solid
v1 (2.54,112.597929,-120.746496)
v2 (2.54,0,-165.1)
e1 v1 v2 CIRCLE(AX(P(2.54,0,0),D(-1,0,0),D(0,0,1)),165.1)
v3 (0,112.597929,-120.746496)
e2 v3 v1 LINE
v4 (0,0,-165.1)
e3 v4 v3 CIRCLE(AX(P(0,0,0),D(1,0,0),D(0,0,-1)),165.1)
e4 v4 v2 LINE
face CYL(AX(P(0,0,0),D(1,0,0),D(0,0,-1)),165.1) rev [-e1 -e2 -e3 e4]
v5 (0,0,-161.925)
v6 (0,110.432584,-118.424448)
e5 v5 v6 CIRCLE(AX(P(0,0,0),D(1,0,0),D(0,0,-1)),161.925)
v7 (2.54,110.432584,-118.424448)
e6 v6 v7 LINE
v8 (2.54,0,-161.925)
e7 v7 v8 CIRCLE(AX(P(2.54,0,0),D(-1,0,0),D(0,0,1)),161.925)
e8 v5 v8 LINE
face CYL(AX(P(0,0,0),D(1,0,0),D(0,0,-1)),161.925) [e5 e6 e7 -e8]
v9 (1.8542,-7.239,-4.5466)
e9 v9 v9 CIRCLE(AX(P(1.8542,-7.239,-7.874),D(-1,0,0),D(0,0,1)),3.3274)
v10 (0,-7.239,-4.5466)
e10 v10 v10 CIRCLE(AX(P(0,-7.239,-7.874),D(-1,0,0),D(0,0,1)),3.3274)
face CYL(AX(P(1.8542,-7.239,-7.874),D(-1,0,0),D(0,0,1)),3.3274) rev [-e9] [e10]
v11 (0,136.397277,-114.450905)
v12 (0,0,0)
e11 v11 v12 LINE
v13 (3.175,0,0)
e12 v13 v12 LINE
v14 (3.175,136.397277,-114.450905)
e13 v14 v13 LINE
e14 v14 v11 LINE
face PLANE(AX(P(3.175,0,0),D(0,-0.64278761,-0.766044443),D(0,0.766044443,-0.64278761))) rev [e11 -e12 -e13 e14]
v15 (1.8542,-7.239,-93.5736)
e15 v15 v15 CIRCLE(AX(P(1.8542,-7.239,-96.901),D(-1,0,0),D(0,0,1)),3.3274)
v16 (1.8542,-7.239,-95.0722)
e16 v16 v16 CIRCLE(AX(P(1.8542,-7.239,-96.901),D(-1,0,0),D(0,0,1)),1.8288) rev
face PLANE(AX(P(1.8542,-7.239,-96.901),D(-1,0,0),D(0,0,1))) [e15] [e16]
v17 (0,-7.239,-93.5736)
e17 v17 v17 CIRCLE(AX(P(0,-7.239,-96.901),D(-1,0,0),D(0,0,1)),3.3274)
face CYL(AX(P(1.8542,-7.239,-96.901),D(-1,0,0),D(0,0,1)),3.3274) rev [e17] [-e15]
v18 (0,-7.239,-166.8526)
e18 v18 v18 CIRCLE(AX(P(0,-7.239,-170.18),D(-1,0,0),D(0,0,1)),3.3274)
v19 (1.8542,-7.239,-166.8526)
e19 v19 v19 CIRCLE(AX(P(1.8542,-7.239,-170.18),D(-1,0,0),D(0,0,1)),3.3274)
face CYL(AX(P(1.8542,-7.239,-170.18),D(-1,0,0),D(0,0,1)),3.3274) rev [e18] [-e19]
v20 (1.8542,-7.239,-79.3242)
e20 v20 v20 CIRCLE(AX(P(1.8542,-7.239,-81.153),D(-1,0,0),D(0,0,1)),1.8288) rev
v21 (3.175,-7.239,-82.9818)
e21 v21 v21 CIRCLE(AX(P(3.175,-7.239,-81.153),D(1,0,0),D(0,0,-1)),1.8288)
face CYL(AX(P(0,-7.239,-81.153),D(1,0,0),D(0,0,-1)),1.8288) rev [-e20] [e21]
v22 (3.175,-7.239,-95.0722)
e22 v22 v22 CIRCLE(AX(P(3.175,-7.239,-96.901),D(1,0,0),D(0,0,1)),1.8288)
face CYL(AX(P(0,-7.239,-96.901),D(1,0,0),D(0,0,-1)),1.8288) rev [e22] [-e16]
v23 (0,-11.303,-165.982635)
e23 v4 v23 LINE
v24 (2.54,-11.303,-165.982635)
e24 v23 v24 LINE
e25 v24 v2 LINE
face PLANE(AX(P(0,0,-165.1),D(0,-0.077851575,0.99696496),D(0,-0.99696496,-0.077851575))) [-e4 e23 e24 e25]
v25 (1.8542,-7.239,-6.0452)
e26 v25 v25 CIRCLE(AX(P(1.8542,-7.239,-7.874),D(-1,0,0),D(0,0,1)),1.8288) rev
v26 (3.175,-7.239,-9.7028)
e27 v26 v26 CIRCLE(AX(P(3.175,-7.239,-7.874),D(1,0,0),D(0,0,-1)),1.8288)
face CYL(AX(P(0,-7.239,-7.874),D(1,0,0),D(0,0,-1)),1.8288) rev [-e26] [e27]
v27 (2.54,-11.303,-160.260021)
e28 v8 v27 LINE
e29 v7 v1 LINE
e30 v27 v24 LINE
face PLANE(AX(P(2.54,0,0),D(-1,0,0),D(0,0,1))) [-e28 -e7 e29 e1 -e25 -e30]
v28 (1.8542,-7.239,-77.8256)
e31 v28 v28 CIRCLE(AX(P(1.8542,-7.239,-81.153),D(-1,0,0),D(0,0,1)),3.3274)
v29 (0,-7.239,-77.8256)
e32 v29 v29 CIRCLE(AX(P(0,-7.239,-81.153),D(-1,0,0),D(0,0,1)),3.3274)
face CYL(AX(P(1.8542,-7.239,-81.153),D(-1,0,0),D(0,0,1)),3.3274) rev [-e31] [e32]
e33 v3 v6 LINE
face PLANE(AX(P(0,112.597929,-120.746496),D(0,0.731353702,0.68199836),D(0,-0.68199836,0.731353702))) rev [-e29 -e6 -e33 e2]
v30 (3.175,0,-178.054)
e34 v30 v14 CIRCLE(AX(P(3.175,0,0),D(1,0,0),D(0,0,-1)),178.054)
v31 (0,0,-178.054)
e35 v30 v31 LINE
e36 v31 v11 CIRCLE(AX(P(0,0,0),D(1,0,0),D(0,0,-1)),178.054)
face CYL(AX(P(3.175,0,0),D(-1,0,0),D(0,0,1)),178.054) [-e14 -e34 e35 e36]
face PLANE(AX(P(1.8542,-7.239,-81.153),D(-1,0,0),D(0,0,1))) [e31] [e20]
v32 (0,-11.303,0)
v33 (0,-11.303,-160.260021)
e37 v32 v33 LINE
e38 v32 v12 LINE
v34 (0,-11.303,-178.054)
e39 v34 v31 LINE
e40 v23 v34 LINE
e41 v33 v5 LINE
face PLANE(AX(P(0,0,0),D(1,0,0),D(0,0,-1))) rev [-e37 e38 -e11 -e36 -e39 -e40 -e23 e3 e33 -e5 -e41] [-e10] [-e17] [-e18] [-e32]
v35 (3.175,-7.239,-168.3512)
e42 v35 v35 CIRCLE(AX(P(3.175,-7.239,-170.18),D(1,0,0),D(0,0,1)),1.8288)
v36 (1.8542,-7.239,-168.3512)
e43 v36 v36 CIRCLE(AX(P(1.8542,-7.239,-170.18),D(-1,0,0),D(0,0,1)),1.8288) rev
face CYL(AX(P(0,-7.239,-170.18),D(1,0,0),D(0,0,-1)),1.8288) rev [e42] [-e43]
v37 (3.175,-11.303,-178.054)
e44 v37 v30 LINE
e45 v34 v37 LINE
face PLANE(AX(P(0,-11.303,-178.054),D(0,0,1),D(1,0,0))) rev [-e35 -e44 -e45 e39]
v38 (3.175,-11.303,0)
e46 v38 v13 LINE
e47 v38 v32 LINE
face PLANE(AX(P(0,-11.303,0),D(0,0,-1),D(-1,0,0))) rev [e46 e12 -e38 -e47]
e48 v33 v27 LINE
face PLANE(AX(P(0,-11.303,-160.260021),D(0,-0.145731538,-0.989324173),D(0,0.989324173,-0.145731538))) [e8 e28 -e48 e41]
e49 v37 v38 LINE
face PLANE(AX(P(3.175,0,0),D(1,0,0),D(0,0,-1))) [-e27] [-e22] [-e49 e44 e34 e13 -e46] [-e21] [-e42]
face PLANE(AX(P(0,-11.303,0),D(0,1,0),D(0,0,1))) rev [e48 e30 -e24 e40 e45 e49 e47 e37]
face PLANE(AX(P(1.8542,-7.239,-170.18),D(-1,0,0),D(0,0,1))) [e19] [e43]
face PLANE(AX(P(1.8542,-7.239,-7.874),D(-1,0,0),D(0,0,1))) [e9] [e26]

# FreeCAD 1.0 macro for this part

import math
import FreeCAD as App
import Part
import Sketcher
Q = App.Units.Quantity

doc = App.newDocument("Part")
params = doc.addObject("Spreadsheet::Sheet", "Params")
for row, (alias, value) in enumerate([
    ("sketch1_radius", "7.01 in"),
    ("pad1_length", "0.125 in"),
    ("sketch2_height", "7.01 in"),
    ("sketch2_width", "0.125 in"),
    ("pad2_length", "0.445 in"),
    ("sketch3_diameter", "0.144 in"),
    ("sketch4_radius", "6.5 in"),
    ("sketch4_radius2", "6.375 in"),
    ("pocket2_length", "0.125 in"),
    ("sketch5_radius", "6.5 in"),
    ("sketch5_radius2", "6.375 in"),
    ("pad3_length", "0.025 in"),
    ("sketch6_diameter", "0.262 in"),
    ("pocket3_length", "0.073 in"),
], start=1):
    params.set(f"A{row}", alias)
    params.set(f"B{row}", "=" + value)
    params.setAlias(f"B{row}", alias)

body = doc.addObject("PartDesign::Body", "Body")

sketch1 = body.newObject("Sketcher::SketchObject", "Sketch")
sketch1.AttachmentSupport = (doc.getObject("YZ_Plane"), [""])
sketch1.MapMode = "FlatFace"
sketch1.addGeometry([
    Part.LineSegment(App.Vector(0, 0, 0), App.Vector(0, -178, 0)),
    Part.ArcOfCircle(Part.Circle(App.Vector(0, 0, 0), App.Vector(0, 0, 1), 178), math.radians(-90), math.radians(-40)),
    Part.LineSegment(App.Vector(136, -114, 0), App.Vector(0, 0, 0)),
], False)
sketch1.addConstraint([
    Sketcher.Constraint("Coincident", 0, 2, 1, 1),
    Sketcher.Constraint("Coincident", 1, 2, 2, 1),
    Sketcher.Constraint("Coincident", 2, 2, 0, 1),
    Sketcher.Constraint("Vertical", 0),
    Sketcher.Constraint("Coincident", 1, 3, -1, 1),
    Sketcher.Constraint("Coincident", 2, 2, -1, 1),
    Sketcher.Constraint("Radius", 1, Q("7.01 in")),
    Sketcher.Constraint("Angle", 2, Q("140 deg")),
])
sketch1.setExpression("Constraints[6]", "Params.sketch1_radius")
pad1 = body.newObject("PartDesign::Pad", "Pad")
pad1.Profile = sketch1
pad1.setExpression("Length", "Params.pad1_length")

sketch2 = body.newObject("Sketcher::SketchObject", "Sketch001")
sketch2.AttachmentSupport = (doc.getObject("XZ_Plane"), [""])
sketch2.MapMode = "FlatFace"
sketch2.addGeometry([
    Part.LineSegment(App.Vector(0, 0, 0), App.Vector(0, -178.1, 0)),
    Part.LineSegment(App.Vector(0, -178.1, 0), App.Vector(3.2, -178.1, 0)),
    Part.LineSegment(App.Vector(3.2, -178.1, 0), App.Vector(3.2, 0, 0)),
    Part.LineSegment(App.Vector(3.2, 0, 0), App.Vector(0, 0, 0)),
], False)
sketch2.addConstraint([
    Sketcher.Constraint("Coincident", 0, 2, 1, 1),
    Sketcher.Constraint("Coincident", 1, 2, 2, 1),
    Sketcher.Constraint("Coincident", 2, 2, 3, 1),
    Sketcher.Constraint("Coincident", 3, 2, 0, 1),
    Sketcher.Constraint("Vertical", 0),
    Sketcher.Constraint("Horizontal", 1),
    Sketcher.Constraint("Vertical", 2),
    Sketcher.Constraint("Horizontal", 3),
    Sketcher.Constraint("Coincident", 3, 2, -1, 1),
    Sketcher.Constraint("DistanceY", 0, 2, 0, 1, Q("7.01 in")),
    Sketcher.Constraint("DistanceX", 1, 1, 1, 2, Q("0.125 in")),
])
sketch2.setExpression("Constraints[9]", "Params.sketch2_height")
sketch2.setExpression("Constraints[10]", "Params.sketch2_width")
pad2 = body.newObject("PartDesign::Pad", "Pad001")
pad2.Profile = sketch2
pad2.setExpression("Length", "Params.pad2_length")

sketch3 = body.newObject("Sketcher::SketchObject", "Sketch002")
sketch3.AttachmentSupport = (doc.getObject("YZ_Plane"), [""])
sketch3.MapMode = "FlatFace"
sketch3.AttachmentOffset = App.Placement(App.Vector(0, 0, 0.125 * 25.4), App.Rotation())
sketch3.addGeometry([
    Part.Circle(App.Vector(-7.2, -7.9, 0), App.Vector(0, 0, 1), 1.8),
    Part.Circle(App.Vector(-7.2, -81.2, 0), App.Vector(0, 0, 1), 1.8),
    Part.Circle(App.Vector(-7.2, -96.9, 0), App.Vector(0, 0, 1), 1.8),
    Part.Circle(App.Vector(-7.2, -170.2, 0), App.Vector(0, 0, 1), 1.8),
], False)
sketch3.addConstraint([
    Sketcher.Constraint("Equal", 0, 1),
    Sketcher.Constraint("Equal", 1, 2),
    Sketcher.Constraint("Equal", 2, 3),
    Sketcher.Constraint("Vertical", 0, 3, 1, 3),
    Sketcher.Constraint("Vertical", 1, 3, 2, 3),
    Sketcher.Constraint("Vertical", 2, 3, 3, 3),
    Sketcher.Constraint("Diameter", 0, Q("0.144 in")),
    Sketcher.Constraint("DistanceY", 3, 3, -1, 1, Q("6.7 in")),
    Sketcher.Constraint("DistanceY", 0, 3, -1, 1, Q("0.31 in")),
    Sketcher.Constraint("DistanceY", 2, 3, 1, 3, Q("0.62 in")),
    Sketcher.Constraint("DistanceX", 0, 3, -1, 1, Q("0.285 in")),
    Sketcher.Constraint("DistanceY", 1, 3, -1, 1, Q("3.195 in")),
])
sketch3.setExpression("Constraints[6]", "Params.sketch3_diameter")
pocket1 = body.newObject("PartDesign::Pocket", "Pocket")
pocket1.Profile = sketch3
pocket1.Type = "ThroughAll"

sketch4 = body.newObject("Sketcher::SketchObject", "Sketch003")
sketch4.AttachmentSupport = (doc.getObject("YZ_Plane"), [""])
sketch4.MapMode = "FlatFace"
sketch4.AttachmentOffset = App.Placement(App.Vector(0, 0, 0.125 * 25.4), App.Rotation())
sketch4.addGeometry([
    Part.LineSegment(App.Vector(-11.3, -166, 0), App.Vector(0, -165.1, 0)),
    Part.ArcOfCircle(Part.Circle(App.Vector(0, 0, 0), App.Vector(0, 0, 1), 165.1), math.radians(-90), math.radians(-47)),
    Part.LineSegment(App.Vector(112.6, -120.7, 0), App.Vector(110.4, -118.4, 0)),
    Part.ArcOfCircle(Part.Circle(App.Vector(0, 0, 0), App.Vector(0, 0, 1), 161.9), math.radians(-90), math.radians(-47)),
    Part.LineSegment(App.Vector(0, -161.9, 0), App.Vector(-11.3, -160.3, 0)),
    Part.LineSegment(App.Vector(-11.3, -160.3, 0), App.Vector(-11.3, -166, 0)),
], False)
sketch4.addConstraint([
    Sketcher.Constraint("Coincident", 0, 2, 1, 1),
    Sketcher.Constraint("Coincident", 1, 2, 2, 1),
    Sketcher.Constraint("Coincident", 2, 2, 3, 2),
    Sketcher.Constraint("Coincident", 3, 1, 4, 1),
    Sketcher.Constraint("Coincident", 4, 2, 5, 1),
    Sketcher.Constraint("Coincident", 5, 2, 0, 1),
    Sketcher.Constraint("Vertical", 5),
    Sketcher.Constraint("Coincident", 1, 3, -1, 1),
    Sketcher.Constraint("Coincident", 3, 3, -1, 1),
    Sketcher.Constraint("PointOnObject", 0, 2, -2),
    Sketcher.Constraint("PointOnObject", 3, 1, -2),
    Sketcher.Constraint("Radius", 1, Q("6.5 in")),
    Sketcher.Constraint("Angle", 2, Q("133 deg")),
    Sketcher.Constraint("Radius", 3, Q("6.375 in")),
    Sketcher.Constraint("DistanceX", 4, 2, -1, 1, Q("0.445 in")),
    Sketcher.Constraint("Distance", 0, 11.337409),
    Sketcher.Constraint("Distance", 4, 11.424971),
    Sketcher.Constraint("DistanceX", -1, 1, 1, 2, 112.597929),
])
sketch4.setExpression("Constraints[11]", "Params.sketch4_radius")
sketch4.setExpression("Constraints[13]", "Params.sketch4_radius2")
pocket2 = body.newObject("PartDesign::Pocket", "Pocket001")
pocket2.Profile = sketch4
pocket2.setExpression("Length", "Params.pocket2_length")

sketch5 = body.newObject("Sketcher::SketchObject", "Sketch004")
sketch5.AttachmentSupport = (doc.getObject("YZ_Plane"), [""])
sketch5.MapMode = "FlatFace"
sketch5.AttachmentOffset = App.Placement(App.Vector(0, 0, 0.125 * 25.4), App.Rotation())
sketch5.addGeometry([
    Part.LineSegment(App.Vector(112.6, -120.7, 0), App.Vector(110.4, -118.4, 0)),
    Part.ArcOfCircle(Part.Circle(App.Vector(0, 0, 0), App.Vector(0, 0, 1), 161.9), math.radians(-90), math.radians(-47)),
    Part.LineSegment(App.Vector(0, -161.9, 0), App.Vector(-11.3, -160.3, 0)),
    Part.LineSegment(App.Vector(-11.3, -160.3, 0), App.Vector(-11.3, -166, 0)),
    Part.LineSegment(App.Vector(-11.3, -166, 0), App.Vector(0, -165.1, 0)),
    Part.ArcOfCircle(Part.Circle(App.Vector(0, 0, 0), App.Vector(0, 0, 1), 165.1), math.radians(-90), math.radians(-47)),
], False)
sketch5.addConstraint([
    Sketcher.Constraint("Coincident", 0, 2, 1, 2),
    Sketcher.Constraint("Coincident", 1, 1, 2, 1),
    Sketcher.Constraint("Coincident", 2, 2, 3, 1),
    Sketcher.Constraint("Coincident", 3, 2, 4, 1),
    Sketcher.Constraint("Coincident", 4, 2, 5, 1),
    Sketcher.Constraint("Coincident", 5, 2, 0, 1),
    Sketcher.Constraint("Vertical", 3),
    Sketcher.Constraint("Coincident", 1, 3, -1, 1),
    Sketcher.Constraint("Coincident", 5, 3, -1, 1),
    Sketcher.Constraint("PointOnObject", 1, 1, -2),
    Sketcher.Constraint("PointOnObject", 4, 2, -2),
    Sketcher.Constraint("Radius", 5, Q("6.5 in")),
    Sketcher.Constraint("Angle", 0, Q("133 deg")),
    Sketcher.Constraint("Radius", 1, Q("6.375 in")),
    Sketcher.Constraint("DistanceX", 2, 2, -1, 1, Q("0.445 in")),
    Sketcher.Constraint("Distance", 2, 11.424971),
    Sketcher.Constraint("Distance", 4, 11.337409),
    Sketcher.Constraint("DistanceY", 0, 2, -1, 1, 118.424448),
])
sketch5.setExpression("Constraints[11]", "Params.sketch5_radius")
sketch5.setExpression("Constraints[13]", "Params.sketch5_radius2")
pad3 = body.newObject("PartDesign::Pad", "Pad002")
pad3.Profile = sketch5
pad3.setExpression("Length", "Params.pad3_length")
pad3.Reversed = True

sketch6 = body.newObject("Sketcher::SketchObject", "Sketch005")
sketch6.AttachmentSupport = (doc.getObject("YZ_Plane"), [""])
sketch6.MapMode = "FlatFace"
sketch6.addGeometry([
    Part.Circle(App.Vector(-7.2, -170.2, 0), App.Vector(0, 0, 1), 3.3),
    Part.Circle(App.Vector(-7.2, -96.9, 0), App.Vector(0, 0, 1), 3.3),
    Part.Circle(App.Vector(-7.2, -81.2, 0), App.Vector(0, 0, 1), 3.3),
    Part.Circle(App.Vector(-7.2, -7.9, 0), App.Vector(0, 0, 1), 3.3),
], False)
sketch6.addConstraint([
    Sketcher.Constraint("Equal", 0, 1),
    Sketcher.Constraint("Equal", 1, 2),
    Sketcher.Constraint("Equal", 2, 3),
    Sketcher.Constraint("Vertical", 0, 3, 1, 3),
    Sketcher.Constraint("Vertical", 1, 3, 2, 3),
    Sketcher.Constraint("Vertical", 2, 3, 3, 3),
    Sketcher.Constraint("Diameter", 0, Q("0.262 in")),
    Sketcher.Constraint("DistanceY", 0, 3, -1, 1, Q("6.7 in")),
    Sketcher.Constraint("DistanceY", 3, 3, -1, 1, Q("0.31 in")),
    Sketcher.Constraint("DistanceY", 1, 3, 2, 3, Q("0.62 in")),
    Sketcher.Constraint("DistanceX", 0, 3, -1, 1, Q("0.285 in")),
    Sketcher.Constraint("DistanceY", 1, 3, -1, 1, Q("3.815 in")),
])
sketch6.setExpression("Constraints[6]", "Params.sketch6_diameter")
pocket3 = body.newObject("PartDesign::Pocket", "Pocket002")
pocket3.Profile = sketch6
pocket3.setExpression("Length", "Params.pocket3_length")
pocket3.Reversed = True

doc.recompute()
